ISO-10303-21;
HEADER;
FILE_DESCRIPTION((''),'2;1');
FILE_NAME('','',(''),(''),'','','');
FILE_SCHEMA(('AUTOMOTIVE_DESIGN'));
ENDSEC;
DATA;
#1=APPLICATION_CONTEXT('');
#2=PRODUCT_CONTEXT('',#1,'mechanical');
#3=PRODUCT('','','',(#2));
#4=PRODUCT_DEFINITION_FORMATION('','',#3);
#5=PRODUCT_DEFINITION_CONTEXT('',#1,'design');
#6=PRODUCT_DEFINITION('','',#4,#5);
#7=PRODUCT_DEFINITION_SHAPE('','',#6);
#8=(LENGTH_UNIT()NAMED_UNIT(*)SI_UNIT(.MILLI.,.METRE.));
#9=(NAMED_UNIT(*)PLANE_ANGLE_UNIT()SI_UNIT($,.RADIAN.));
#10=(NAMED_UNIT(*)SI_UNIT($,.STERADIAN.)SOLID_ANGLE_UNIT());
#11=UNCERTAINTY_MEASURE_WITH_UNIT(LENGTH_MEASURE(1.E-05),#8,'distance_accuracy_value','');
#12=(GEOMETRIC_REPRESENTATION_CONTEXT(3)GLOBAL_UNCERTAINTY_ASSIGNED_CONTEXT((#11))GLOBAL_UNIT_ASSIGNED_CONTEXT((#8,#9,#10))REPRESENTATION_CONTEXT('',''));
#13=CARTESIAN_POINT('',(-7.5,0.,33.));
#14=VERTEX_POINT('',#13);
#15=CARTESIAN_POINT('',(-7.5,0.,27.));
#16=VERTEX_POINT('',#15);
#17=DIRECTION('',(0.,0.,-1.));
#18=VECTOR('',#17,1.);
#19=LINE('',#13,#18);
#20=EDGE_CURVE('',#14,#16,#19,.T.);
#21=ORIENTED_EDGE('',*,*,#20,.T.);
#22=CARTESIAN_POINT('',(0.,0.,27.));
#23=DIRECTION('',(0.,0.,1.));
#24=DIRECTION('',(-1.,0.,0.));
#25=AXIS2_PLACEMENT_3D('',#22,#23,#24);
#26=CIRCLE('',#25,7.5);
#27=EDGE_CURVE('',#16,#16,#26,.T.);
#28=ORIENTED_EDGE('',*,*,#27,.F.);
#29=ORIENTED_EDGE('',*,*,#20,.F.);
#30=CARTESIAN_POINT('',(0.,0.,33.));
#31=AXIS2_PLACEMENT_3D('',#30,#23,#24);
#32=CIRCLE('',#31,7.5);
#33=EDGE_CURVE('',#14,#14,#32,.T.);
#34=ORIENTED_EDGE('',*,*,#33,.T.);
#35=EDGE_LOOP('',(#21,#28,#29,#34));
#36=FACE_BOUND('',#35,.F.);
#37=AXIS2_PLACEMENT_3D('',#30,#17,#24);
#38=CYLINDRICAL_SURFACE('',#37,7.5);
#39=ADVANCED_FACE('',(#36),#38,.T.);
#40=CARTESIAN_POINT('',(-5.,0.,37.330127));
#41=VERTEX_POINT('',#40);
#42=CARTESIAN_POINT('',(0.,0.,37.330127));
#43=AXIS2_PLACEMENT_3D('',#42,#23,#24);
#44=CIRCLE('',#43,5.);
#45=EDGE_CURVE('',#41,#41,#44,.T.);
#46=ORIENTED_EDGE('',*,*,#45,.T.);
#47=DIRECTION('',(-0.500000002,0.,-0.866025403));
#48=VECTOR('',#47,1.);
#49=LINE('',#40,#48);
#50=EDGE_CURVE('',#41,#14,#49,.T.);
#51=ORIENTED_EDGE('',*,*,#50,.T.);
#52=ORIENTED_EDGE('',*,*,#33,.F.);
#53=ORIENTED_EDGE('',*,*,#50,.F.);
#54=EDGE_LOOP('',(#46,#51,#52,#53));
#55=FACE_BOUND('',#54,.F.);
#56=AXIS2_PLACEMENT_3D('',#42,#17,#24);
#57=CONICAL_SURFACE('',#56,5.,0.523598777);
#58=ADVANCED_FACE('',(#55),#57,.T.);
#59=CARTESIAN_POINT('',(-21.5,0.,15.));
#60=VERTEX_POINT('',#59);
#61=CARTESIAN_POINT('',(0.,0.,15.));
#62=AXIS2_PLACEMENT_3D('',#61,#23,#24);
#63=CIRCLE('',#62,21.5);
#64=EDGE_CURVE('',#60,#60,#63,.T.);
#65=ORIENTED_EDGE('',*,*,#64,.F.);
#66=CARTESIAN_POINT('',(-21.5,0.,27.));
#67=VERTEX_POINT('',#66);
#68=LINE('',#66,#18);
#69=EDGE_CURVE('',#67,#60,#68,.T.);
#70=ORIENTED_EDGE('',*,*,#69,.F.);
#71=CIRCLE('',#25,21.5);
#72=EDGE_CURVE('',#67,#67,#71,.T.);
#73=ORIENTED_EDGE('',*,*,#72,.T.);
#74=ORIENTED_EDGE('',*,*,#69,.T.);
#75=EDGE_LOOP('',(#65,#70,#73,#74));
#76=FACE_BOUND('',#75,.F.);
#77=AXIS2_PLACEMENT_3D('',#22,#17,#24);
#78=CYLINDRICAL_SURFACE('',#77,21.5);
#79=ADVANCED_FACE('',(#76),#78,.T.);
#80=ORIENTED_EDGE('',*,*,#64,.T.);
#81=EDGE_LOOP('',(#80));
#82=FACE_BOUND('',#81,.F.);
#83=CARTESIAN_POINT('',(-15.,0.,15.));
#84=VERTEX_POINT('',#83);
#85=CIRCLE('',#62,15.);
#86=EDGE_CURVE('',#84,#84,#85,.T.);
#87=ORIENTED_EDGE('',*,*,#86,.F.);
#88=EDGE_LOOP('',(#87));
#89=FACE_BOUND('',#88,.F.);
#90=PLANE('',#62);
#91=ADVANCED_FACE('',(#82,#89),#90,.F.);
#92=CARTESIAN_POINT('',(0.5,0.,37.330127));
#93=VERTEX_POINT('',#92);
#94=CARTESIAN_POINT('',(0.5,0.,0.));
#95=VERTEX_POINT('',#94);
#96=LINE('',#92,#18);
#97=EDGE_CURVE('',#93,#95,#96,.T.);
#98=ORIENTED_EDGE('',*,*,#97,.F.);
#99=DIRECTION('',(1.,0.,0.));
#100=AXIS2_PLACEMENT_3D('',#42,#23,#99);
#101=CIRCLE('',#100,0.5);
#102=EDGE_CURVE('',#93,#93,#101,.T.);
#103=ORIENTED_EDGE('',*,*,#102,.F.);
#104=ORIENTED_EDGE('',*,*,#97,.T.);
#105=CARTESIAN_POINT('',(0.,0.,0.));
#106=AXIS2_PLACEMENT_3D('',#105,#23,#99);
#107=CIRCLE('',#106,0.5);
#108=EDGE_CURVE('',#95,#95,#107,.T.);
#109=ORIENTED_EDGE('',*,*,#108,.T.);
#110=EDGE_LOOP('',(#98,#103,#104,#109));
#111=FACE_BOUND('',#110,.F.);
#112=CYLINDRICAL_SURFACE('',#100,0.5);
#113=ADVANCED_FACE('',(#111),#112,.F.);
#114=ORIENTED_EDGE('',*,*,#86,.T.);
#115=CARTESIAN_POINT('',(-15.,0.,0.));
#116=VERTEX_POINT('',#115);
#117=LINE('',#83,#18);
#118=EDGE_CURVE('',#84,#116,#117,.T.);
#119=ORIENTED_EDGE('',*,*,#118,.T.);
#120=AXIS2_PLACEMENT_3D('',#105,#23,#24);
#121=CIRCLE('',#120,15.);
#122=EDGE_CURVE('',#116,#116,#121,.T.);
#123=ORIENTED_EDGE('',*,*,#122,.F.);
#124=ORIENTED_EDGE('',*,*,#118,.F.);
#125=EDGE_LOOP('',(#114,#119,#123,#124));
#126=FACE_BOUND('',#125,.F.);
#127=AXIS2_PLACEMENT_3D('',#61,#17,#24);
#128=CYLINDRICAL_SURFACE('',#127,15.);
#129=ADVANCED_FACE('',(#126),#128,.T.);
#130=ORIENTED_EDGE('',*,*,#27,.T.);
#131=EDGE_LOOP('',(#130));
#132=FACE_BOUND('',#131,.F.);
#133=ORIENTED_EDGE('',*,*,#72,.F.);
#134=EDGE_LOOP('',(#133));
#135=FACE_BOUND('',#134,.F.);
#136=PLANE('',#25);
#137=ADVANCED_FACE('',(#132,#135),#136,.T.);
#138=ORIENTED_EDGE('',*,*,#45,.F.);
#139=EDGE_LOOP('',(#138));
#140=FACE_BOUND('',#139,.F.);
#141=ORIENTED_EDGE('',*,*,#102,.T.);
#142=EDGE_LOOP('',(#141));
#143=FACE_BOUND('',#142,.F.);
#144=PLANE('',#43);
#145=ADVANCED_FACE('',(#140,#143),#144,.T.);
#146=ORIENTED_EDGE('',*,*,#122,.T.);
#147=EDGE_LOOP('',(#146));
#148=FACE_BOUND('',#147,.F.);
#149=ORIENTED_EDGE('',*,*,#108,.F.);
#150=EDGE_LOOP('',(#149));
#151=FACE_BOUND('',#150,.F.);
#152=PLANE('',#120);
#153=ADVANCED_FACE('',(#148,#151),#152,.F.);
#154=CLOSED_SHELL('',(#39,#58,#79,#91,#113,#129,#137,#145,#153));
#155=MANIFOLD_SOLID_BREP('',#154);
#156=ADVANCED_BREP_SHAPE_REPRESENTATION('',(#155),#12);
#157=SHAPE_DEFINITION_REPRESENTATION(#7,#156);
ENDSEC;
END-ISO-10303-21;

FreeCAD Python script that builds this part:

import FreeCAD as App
import Part
import Sketcher
from FreeCAD import Vector
Q = App.Units.Quantity


def add_polygon(sketch, points):
    """Adds a closed chain of lines whose ends are joined by coincident constraints."""
    first, n = sketch.GeometryCount, len(points)
    for a, b in zip(points, points[1:] + points[:1]):
        sketch.addGeometry(Part.LineSegment(App.Vector(*a, 0), App.Vector(*b, 0)), False)
    for i in range(n):
        sketch.addConstraint(Sketcher.Constraint("Coincident", first + i, 2, first + (i + 1) % n, 1))

doc = App.newDocument("Part")
body = doc.addObject("PartDesign::Body", "Body")

sketch1 = body.newObject("Sketcher::SketchObject", "Sketch")
sketch1.AttachmentSupport = (doc.getObject("XZ_Plane"), [""])
sketch1.MapMode = "FlatFace"
add_polygon(sketch1, [(0, 0), (0, 37.330127), (-5, 37.330127), (-7.5, 33), (-7.5, 27), (-21.5, 27), (-21.5, 15), (-15, 15), (-15, 0)])
sketch1.addConstraint([
    Sketcher.Constraint("Vertical", 0),
    Sketcher.Constraint("Horizontal", 1),
    Sketcher.Constraint("Vertical", 3),
    Sketcher.Constraint("Horizontal", 4),
    Sketcher.Constraint("Vertical", 5),
    Sketcher.Constraint("Horizontal", 6),
    Sketcher.Constraint("Vertical", 7),
    Sketcher.Constraint("Horizontal", 8),
    Sketcher.Constraint("Coincident", 8, 2, -1, 1),
    Sketcher.Constraint("Equal", 8, 7),
    Sketcher.Constraint("DistanceX", 1, 2, 1, 1, 5.0),
    Sketcher.Constraint("DistanceX", 4, 2, 4, 1, 14.0),
    Sketcher.Constraint("DistanceX", 8, 1, 8, 2, 15.0),
    Sketcher.Constraint("DistanceY", 3, 2, 3, 1, 6.0),
    Sketcher.Constraint("DistanceY", 5, 2, 5, 1, 12.0),
    Sketcher.Constraint("Angle", 2, Q("-120 deg")),
    Sketcher.Constraint("Distance", 2, 5.0),
])
revolution = body.newObject("PartDesign::Revolution", "Revolution")
revolution.Profile = sketch1
revolution.ReferenceAxis = (sketch1, ["V_Axis"])
revolution.Angle = 360

sketch2 = body.newObject("Sketcher::SketchObject", "Sketch001")
sketch2.AttachmentSupport = (doc.getObject("XY_Plane"), [""])
sketch2.MapMode = "FlatFace"
sketch2.AttachmentOffset = App.Placement(Vector(0, 0, 37.330127), App.Rotation())
sketch2.addGeometry(Part.Circle(Vector(0, 0, 0), Vector(0, 0, 1), 0.5), False)
sketch2.addConstraint([
    Sketcher.Constraint("Coincident", 0, 3, -1, 1),
    Sketcher.Constraint("Diameter", 0, 1.0),
])
pocket1 = body.newObject("PartDesign::Pocket", "Pocket")
pocket1.Profile = sketch2
pocket1.Type = "ThroughAll"

doc.recompute()
